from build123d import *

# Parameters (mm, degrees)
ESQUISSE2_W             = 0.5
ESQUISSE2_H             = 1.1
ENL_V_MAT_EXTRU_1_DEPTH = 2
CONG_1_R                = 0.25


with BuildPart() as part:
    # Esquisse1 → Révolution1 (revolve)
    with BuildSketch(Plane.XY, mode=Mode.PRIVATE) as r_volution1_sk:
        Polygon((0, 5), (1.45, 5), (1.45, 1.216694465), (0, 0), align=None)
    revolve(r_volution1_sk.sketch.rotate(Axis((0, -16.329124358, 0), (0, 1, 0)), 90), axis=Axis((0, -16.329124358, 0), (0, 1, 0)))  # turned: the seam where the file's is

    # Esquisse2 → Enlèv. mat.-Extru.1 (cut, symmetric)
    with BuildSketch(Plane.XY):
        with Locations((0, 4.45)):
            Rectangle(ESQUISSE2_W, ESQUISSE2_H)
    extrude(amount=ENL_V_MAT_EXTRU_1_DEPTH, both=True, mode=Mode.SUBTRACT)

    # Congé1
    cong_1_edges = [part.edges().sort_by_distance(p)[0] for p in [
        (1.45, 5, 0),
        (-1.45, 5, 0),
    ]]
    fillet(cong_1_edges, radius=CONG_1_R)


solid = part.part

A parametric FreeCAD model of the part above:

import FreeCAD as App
import Part
import Sketcher

V = App.Vector
Q = App.Units.Quantity


def edges_at(feature, points):
    """Names of the edges that pass closest to the given points."""
    edges = feature.Shape.Edges
    near = lambda p: min(range(len(edges)), key=lambda i: edges[i].distToShape(Part.Vertex(*p))[0])
    return sorted({f"Edge{near(p) + 1}" for p in points})

doc = App.newDocument("Part")
body = doc.addObject("PartDesign::Body", "Body")

sketch1 = body.newObject("Sketcher::SketchObject", "Sketch")
sketch1.AttachmentSupport = (doc.getObject("XY_Plane"), [""])
sketch1.MapMode = "FlatFace"
sketch1.addGeometry([
    Part.LineSegment(V(1.4, 5, 0), V(0, 5, 0)),
    Part.LineSegment(V(0, 5, 0), V(0, 0, 0)),
    Part.LineSegment(V(0, 0, 0), V(1.4, 1.2, 0)),
    Part.LineSegment(V(1.4, 1.2, 0), V(1.4, 5, 0)),
], False)
sketch1.addConstraint([
    Sketcher.Constraint("Coincident", 0, 2, 1, 1),
    Sketcher.Constraint("Coincident", 1, 2, 2, 1),
    Sketcher.Constraint("Coincident", 2, 2, 3, 1),
    Sketcher.Constraint("Coincident", 3, 2, 0, 1),
    Sketcher.Constraint("Horizontal", 0),
    Sketcher.Constraint("Vertical", 1),
    Sketcher.Constraint("Vertical", 3),
    Sketcher.Constraint("Coincident", 1, 2, -1, 1),
    Sketcher.Constraint("DistanceY", 1, 2, 1, 1, Q("5 mm")),
    Sketcher.Constraint("Angle", 2, Q("40 deg")),
    Sketcher.Constraint("DistanceX", 0, 2, 0, 1, Q("1.45 mm")),
])
revolution = body.newObject("PartDesign::Revolution", "Revolution")
revolution.Profile = sketch1
revolution.ReferenceAxis = (sketch1, ["V_Axis"])
revolution.Angle = 360

sketch2 = body.newObject("Sketcher::SketchObject", "Sketch001")
sketch2.AttachmentSupport = (doc.getObject("XY_Plane"), [""])
sketch2.MapMode = "FlatFace"
sketch2.addGeometry([
    Part.LineSegment(V(-0.2, 5, 0), V(-0.2, 3.9, 0)),
    Part.LineSegment(V(-0.2, 3.9, 0), V(0.2, 3.9, 0)),
    Part.LineSegment(V(0.2, 3.9, 0), V(0.2, 5, 0)),
    Part.LineSegment(V(0.2, 5, 0), V(-0.2, 5, 0)),
], False)
sketch2.addConstraint([
    Sketcher.Constraint("Coincident", 0, 2, 1, 1),
    Sketcher.Constraint("Coincident", 1, 2, 2, 1),
    Sketcher.Constraint("Coincident", 2, 2, 3, 1),
    Sketcher.Constraint("Coincident", 3, 2, 0, 1),
    Sketcher.Constraint("Vertical", 0),
    Sketcher.Constraint("Horizontal", 1),
    Sketcher.Constraint("Vertical", 2),
    Sketcher.Constraint("Horizontal", 3),
    Sketcher.Constraint("DistanceX", 1, 1, 1, 2, Q("0.5 mm")),
    Sketcher.Constraint("DistanceY", 0, 2, 0, 1, Q("1.1 mm")),
    Sketcher.Constraint("DistanceY", -1, 1, 2, 2, Q("5 mm")),
    Sketcher.Constraint("DistanceX", 0, 2, -1, 1, Q("0.25 mm")),
])
pocket1 = body.newObject("PartDesign::Pocket", "Pocket")
pocket1.Profile = sketch2
pocket1.Length = 4
pocket1.Midplane = True
doc.recompute()

fillet = body.newObject("PartDesign::Fillet", "Fillet")
fillet.Base = (pocket1, edges_at(pocket1, [(1.45, 5, 0), (-1.45, 5, 0)]))
fillet.Radius = 0.25

doc.recompute()
